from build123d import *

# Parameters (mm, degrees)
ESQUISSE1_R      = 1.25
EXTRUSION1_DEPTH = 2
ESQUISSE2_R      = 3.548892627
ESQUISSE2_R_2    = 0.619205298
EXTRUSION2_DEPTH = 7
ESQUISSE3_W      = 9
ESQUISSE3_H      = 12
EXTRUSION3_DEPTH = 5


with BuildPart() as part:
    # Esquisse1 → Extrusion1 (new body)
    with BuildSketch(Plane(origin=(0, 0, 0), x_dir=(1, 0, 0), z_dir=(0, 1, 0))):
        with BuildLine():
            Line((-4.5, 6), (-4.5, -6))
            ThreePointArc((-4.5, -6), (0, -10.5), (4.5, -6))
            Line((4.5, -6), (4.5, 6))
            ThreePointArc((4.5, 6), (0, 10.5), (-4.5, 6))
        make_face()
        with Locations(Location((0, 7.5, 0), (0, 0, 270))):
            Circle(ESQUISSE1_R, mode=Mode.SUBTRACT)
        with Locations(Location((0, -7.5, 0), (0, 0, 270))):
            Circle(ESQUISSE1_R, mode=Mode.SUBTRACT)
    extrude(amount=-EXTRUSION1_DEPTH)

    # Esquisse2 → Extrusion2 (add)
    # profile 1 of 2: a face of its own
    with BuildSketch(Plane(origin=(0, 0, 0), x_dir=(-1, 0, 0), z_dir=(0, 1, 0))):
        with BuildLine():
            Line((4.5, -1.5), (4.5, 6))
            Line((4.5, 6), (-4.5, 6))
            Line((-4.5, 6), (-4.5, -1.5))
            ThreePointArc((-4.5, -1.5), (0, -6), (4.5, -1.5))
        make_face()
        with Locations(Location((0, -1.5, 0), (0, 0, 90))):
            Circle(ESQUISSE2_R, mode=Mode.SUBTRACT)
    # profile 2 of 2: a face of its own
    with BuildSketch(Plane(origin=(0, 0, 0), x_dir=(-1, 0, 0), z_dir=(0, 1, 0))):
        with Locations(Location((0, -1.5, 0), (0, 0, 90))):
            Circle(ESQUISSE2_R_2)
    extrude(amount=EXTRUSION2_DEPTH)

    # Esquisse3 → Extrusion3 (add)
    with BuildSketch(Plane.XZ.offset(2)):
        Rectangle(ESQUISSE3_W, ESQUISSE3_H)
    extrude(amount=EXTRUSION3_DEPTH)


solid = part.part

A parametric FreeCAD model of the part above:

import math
import FreeCAD as App
import Part
import Sketcher
Q = App.Units.Quantity


def add_polygon(sketch, points):
    """Adds a closed chain of lines whose ends are joined by coincident constraints."""
    first, n = sketch.GeometryCount, len(points)
    for a, b in zip(points, points[1:] + points[:1]):
        sketch.addGeometry(Part.LineSegment(App.Vector(*a, 0), App.Vector(*b, 0)), False)
    for i in range(n):
        sketch.addConstraint(Sketcher.Constraint("Coincident", first + i, 2, first + (i + 1) % n, 1))

doc = App.newDocument("Part")
params = doc.addObject("Spreadsheet::Sheet", "Params")
for row, (alias, value) in enumerate([
    ("sketch1_diameter", "2.5 mm"),
    ("sketch1_radius", "4.5 mm"),
    ("sketch1_height", "12 mm"),
    ("pad1_length", "2 mm"),
    ("sketch2_radius", "4.5 mm"),
    ("sketch2_height", "7.5 mm"),
    ("pad2_length", "7 mm"),
    ("sketch3_width", "9 mm"),
    ("sketch3_height", "12 mm"),
    ("pad3_length", "5 mm"),
], start=1):
    params.set(f"A{row}", alias)
    params.set(f"B{row}", "=" + value)
    params.setAlias(f"B{row}", alias)

body = doc.addObject("PartDesign::Body", "Body")

# Sketch on XZ plane
sketch1 = body.newObject("Sketcher::SketchObject", "Sketch")
sketch1.AttachmentSupport = (doc.getObject("XZ_Plane"), [""])
sketch1.MapMode = "FlatFace"
sketch1.addGeometry([
    Part.LineSegment(App.Vector(-4.5, -6, 0), App.Vector(-4.5, 6, 0)),  # 0
    Part.ArcOfCircle(Part.Circle(App.Vector(0, 6, 0), App.Vector(0, 0, 1), 4.5), math.radians(0), math.radians(180)),  # 1
    Part.LineSegment(App.Vector(4.5, 6, 0), App.Vector(4.5, -6, 0)),  # 2
    Part.ArcOfCircle(Part.Circle(App.Vector(0, -6, 0), App.Vector(0, 0, 1), 4.5), math.radians(180), math.radians(360)),  # 3
    Part.Circle(App.Vector(0, 7.5, 0), App.Vector(0, 0, 1), 1.2),  # 4
    Part.Circle(App.Vector(0, -7.5, 0), App.Vector(0, 0, 1), 1.2),  # 5
], False)
sketch1.addConstraint([
    Sketcher.Constraint("Tangent", 0, 2, 1, 2),
    Sketcher.Constraint("Tangent", 1, 1, 2, 1),
    Sketcher.Constraint("Tangent", 2, 2, 3, 2),
    Sketcher.Constraint("Tangent", 3, 1, 0, 1),
    Sketcher.Constraint("Vertical", 0),
    Sketcher.Constraint("Vertical", 2),
    Sketcher.Constraint("Equal", 4, 5),
    Sketcher.Constraint("Symmetric", 1, 3, 3, 3, -1, 1),
    Sketcher.Constraint("Symmetric", 4, 3, 5, 3, -1, 1),
    Sketcher.Constraint("PointOnObject", 4, 3, -2),
    Sketcher.Constraint("Diameter", 4, Q("2.5 mm")),
    Sketcher.Constraint("Radius", 1, Q("4.5 mm")),
    Sketcher.Constraint("DistanceY", 0, 1, 0, 2, Q("12 mm")),
    Sketcher.Constraint("DistanceY", 5, 3, 4, 3, Q("15 mm")),
])
sketch1.setExpression("Constraints[10]", "Params.sketch1_diameter")
sketch1.setExpression("Constraints[11]", "Params.sketch1_radius")
sketch1.setExpression("Constraints[12]", "Params.sketch1_height")
pad1 = body.newObject("PartDesign::Pad", "Pad")
pad1.Profile = sketch1
pad1.setExpression("Length", "Params.pad1_length")

# Sketch on XZ plane
sketch2 = body.newObject("Sketcher::SketchObject", "Sketch001")
sketch2.AttachmentSupport = (doc.getObject("XZ_Plane"), [""])
sketch2.MapMode = "FlatFace"
sketch2.addGeometry([
    Part.LineSegment(App.Vector(-4.5, -1.5, 0), App.Vector(-4.5, 6, 0)),  # 0
    Part.LineSegment(App.Vector(-4.5, 6, 0), App.Vector(4.5, 6, 0)),  # 1
    Part.LineSegment(App.Vector(4.5, 6, 0), App.Vector(4.5, -1.5, 0)),  # 2
    Part.ArcOfCircle(Part.Circle(App.Vector(0, -1.5, 0), App.Vector(0, 0, 1), 4.5), math.radians(180), math.radians(360)),  # 3
    Part.Circle(App.Vector(0, -1.5, 0), App.Vector(0, 0, 1), 3.5),  # 4
    Part.Circle(App.Vector(0, -1.5, 0), App.Vector(0, 0, 1), 0.6),  # 5
], False)
sketch2.addConstraint([
    Sketcher.Constraint("Coincident", 0, 2, 1, 1),
    Sketcher.Constraint("Coincident", 1, 2, 2, 1),
    Sketcher.Constraint("Tangent", 2, 2, 3, 2),
    Sketcher.Constraint("Tangent", 3, 1, 0, 1),
    Sketcher.Constraint("Vertical", 0),
    Sketcher.Constraint("Horizontal", 1),
    Sketcher.Constraint("Vertical", 2),
    Sketcher.Constraint("Coincident", 4, 3, 3, 3),
    Sketcher.Constraint("Coincident", 5, 3, 3, 3),
    Sketcher.Constraint("PointOnObject", 3, 3, -2),
    Sketcher.Constraint("Radius", 3, Q("4.5 mm")),
    Sketcher.Constraint("DistanceY", 0, 1, 0, 2, Q("7.5 mm")),
    Sketcher.Constraint("DistanceY", -1, 1, 0, 2, Q("6 mm")),
    Sketcher.Constraint("Diameter", 5, Q("1.238411 mm")),
    Sketcher.Constraint("Diameter", 4, Q("7.097785 mm")),
])
sketch2.setExpression("Constraints[10]", "Params.sketch2_radius")
sketch2.setExpression("Constraints[11]", "Params.sketch2_height")
pad2 = body.newObject("PartDesign::Pad", "Pad001")
pad2.Profile = sketch2
pad2.setExpression("Length", "Params.pad2_length")
pad2.Reversed = True

# Sketch on XZ plane
sketch3 = body.newObject("Sketcher::SketchObject", "Sketch002")
sketch3.AttachmentSupport = (doc.getObject("XZ_Plane"), [""])
sketch3.MapMode = "FlatFace"
sketch3.AttachmentOffset = App.Placement(App.Vector(0, 0, 2), App.Rotation())
add_polygon(sketch3, [(-4, 6), (-4, -6), (4, -6), (4, 6)])  # lines 0-3
sketch3.addConstraint([
    Sketcher.Constraint("Vertical", 0),
    Sketcher.Constraint("Horizontal", 1),
    Sketcher.Constraint("Vertical", 2),
    Sketcher.Constraint("Horizontal", 3),
    Sketcher.Constraint("Symmetric", 0, 2, 2, 2, -1, 1),
    Sketcher.Constraint("DistanceX", 1, 1, 1, 2, Q("9 mm")),
    Sketcher.Constraint("DistanceY", 0, 2, 0, 1, Q("12 mm")),
])
sketch3.setExpression("Constraints[9]", "Params.sketch3_width")
sketch3.setExpression("Constraints[10]", "Params.sketch3_height")
pad3 = body.newObject("PartDesign::Pad", "Pad002")
pad3.Profile = sketch3
pad3.setExpression("Length", "Params.pad3_length")

doc.recompute()
